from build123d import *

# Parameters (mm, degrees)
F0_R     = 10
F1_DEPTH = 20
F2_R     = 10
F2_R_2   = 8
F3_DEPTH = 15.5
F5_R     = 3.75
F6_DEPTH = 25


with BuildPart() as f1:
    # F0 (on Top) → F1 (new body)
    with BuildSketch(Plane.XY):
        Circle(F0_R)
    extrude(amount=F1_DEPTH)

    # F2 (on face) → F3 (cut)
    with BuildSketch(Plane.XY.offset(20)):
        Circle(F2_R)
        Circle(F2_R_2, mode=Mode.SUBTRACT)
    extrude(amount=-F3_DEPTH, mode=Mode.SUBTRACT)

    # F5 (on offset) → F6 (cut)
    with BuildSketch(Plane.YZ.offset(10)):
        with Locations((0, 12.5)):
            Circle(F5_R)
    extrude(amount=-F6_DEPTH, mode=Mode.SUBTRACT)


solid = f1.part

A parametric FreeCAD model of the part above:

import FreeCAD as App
import Part
import Sketcher
from FreeCAD import Vector

doc = App.newDocument("Part")
params = doc.addObject("Spreadsheet::Sheet", "Params")
for row, (alias, value) in enumerate([
    ("sketch1_diameter", "20 mm"),
    ("pad1_length", "20 mm"),
    ("sketch2_diameter", "20 mm"),
    ("sketch2_diameter2", "16 mm"),
    ("pocket1_length", "15.5 mm"),
    ("sketch3_diameter", "7.5 mm"),
    ("pocket2_length", "25 mm"),
], start=1):
    params.set(f"A{row}", alias)
    params.set(f"B{row}", "=" + value)
    params.setAlias(f"B{row}", alias)

body = doc.addObject("PartDesign::Body", "Body")

sketch1 = doc.addObject("Sketcher::SketchObject", "Sketch")
body.addObject(sketch1)
sketch1.AttachmentSupport = (doc.XY_Plane, [""])
sketch1.MapMode = "FlatFace"
sketch1.addGeometry(Part.Circle(Vector(0, 0, 0), Vector(0, 0, 1), 10), False)
sketch1.addConstraint([
    Sketcher.Constraint("Coincident", 0, 3, -1, 1),
    Sketcher.Constraint("Diameter", 0, 20.0),
])
sketch1.setExpression("Constraints[1]", "Params.sketch1_diameter")
pad1 = doc.addObject("PartDesign::Pad", "Pad")
body.addObject(pad1)
pad1.Profile = sketch1
pad1.setExpression("Length", "Params.pad1_length")

sketch2 = doc.addObject("Sketcher::SketchObject", "Sketch001")
body.addObject(sketch2)
sketch2.AttachmentSupport = (doc.XY_Plane, [""])
sketch2.MapMode = "FlatFace"
sketch2.AttachmentOffset = App.Placement(Vector(0, 0, 20), App.Rotation())
sketch2.addGeometry([
    Part.Circle(Vector(0, 0, 0), Vector(0, 0, 1), 10),
    Part.Circle(Vector(0, 0, 0), Vector(0, 0, 1), 8),
], False)
sketch2.addConstraint([
    Sketcher.Constraint("Coincident", 0, 3, -1, 1),
    Sketcher.Constraint("Coincident", 1, 3, -1, 1),
    Sketcher.Constraint("Diameter", 0, 20.0),
    Sketcher.Constraint("Diameter", 1, 16.0),
])
sketch2.setExpression("Constraints[2]", "Params.sketch2_diameter")
sketch2.setExpression("Constraints[3]", "Params.sketch2_diameter2")
pocket1 = doc.addObject("PartDesign::Pocket", "Pocket")
body.addObject(pocket1)
pocket1.Profile = sketch2
pocket1.setExpression("Length", "Params.pocket1_length")

sketch3 = doc.addObject("Sketcher::SketchObject", "Sketch002")
body.addObject(sketch3)
sketch3.AttachmentSupport = (doc.YZ_Plane, [""])
sketch3.MapMode = "FlatFace"
sketch3.AttachmentOffset = App.Placement(Vector(0, 0, 10), App.Rotation())
sketch3.addGeometry(Part.Circle(Vector(0, 12.5, 0), Vector(0, 0, 1), 3.8), False)
sketch3.addConstraint([
    Sketcher.Constraint("PointOnObject", 0, 3, -2),
    Sketcher.Constraint("Diameter", 0, 7.5),
    Sketcher.Constraint("DistanceY", -1, 1, 0, 3, 12.5),
])
sketch3.setExpression("Constraints[1]", "Params.sketch3_diameter")
pocket2 = doc.addObject("PartDesign::Pocket", "Pocket001")
body.addObject(pocket2)
pocket2.Profile = sketch3
pocket2.setExpression("Length", "Params.pocket2_length")

doc.recompute()
